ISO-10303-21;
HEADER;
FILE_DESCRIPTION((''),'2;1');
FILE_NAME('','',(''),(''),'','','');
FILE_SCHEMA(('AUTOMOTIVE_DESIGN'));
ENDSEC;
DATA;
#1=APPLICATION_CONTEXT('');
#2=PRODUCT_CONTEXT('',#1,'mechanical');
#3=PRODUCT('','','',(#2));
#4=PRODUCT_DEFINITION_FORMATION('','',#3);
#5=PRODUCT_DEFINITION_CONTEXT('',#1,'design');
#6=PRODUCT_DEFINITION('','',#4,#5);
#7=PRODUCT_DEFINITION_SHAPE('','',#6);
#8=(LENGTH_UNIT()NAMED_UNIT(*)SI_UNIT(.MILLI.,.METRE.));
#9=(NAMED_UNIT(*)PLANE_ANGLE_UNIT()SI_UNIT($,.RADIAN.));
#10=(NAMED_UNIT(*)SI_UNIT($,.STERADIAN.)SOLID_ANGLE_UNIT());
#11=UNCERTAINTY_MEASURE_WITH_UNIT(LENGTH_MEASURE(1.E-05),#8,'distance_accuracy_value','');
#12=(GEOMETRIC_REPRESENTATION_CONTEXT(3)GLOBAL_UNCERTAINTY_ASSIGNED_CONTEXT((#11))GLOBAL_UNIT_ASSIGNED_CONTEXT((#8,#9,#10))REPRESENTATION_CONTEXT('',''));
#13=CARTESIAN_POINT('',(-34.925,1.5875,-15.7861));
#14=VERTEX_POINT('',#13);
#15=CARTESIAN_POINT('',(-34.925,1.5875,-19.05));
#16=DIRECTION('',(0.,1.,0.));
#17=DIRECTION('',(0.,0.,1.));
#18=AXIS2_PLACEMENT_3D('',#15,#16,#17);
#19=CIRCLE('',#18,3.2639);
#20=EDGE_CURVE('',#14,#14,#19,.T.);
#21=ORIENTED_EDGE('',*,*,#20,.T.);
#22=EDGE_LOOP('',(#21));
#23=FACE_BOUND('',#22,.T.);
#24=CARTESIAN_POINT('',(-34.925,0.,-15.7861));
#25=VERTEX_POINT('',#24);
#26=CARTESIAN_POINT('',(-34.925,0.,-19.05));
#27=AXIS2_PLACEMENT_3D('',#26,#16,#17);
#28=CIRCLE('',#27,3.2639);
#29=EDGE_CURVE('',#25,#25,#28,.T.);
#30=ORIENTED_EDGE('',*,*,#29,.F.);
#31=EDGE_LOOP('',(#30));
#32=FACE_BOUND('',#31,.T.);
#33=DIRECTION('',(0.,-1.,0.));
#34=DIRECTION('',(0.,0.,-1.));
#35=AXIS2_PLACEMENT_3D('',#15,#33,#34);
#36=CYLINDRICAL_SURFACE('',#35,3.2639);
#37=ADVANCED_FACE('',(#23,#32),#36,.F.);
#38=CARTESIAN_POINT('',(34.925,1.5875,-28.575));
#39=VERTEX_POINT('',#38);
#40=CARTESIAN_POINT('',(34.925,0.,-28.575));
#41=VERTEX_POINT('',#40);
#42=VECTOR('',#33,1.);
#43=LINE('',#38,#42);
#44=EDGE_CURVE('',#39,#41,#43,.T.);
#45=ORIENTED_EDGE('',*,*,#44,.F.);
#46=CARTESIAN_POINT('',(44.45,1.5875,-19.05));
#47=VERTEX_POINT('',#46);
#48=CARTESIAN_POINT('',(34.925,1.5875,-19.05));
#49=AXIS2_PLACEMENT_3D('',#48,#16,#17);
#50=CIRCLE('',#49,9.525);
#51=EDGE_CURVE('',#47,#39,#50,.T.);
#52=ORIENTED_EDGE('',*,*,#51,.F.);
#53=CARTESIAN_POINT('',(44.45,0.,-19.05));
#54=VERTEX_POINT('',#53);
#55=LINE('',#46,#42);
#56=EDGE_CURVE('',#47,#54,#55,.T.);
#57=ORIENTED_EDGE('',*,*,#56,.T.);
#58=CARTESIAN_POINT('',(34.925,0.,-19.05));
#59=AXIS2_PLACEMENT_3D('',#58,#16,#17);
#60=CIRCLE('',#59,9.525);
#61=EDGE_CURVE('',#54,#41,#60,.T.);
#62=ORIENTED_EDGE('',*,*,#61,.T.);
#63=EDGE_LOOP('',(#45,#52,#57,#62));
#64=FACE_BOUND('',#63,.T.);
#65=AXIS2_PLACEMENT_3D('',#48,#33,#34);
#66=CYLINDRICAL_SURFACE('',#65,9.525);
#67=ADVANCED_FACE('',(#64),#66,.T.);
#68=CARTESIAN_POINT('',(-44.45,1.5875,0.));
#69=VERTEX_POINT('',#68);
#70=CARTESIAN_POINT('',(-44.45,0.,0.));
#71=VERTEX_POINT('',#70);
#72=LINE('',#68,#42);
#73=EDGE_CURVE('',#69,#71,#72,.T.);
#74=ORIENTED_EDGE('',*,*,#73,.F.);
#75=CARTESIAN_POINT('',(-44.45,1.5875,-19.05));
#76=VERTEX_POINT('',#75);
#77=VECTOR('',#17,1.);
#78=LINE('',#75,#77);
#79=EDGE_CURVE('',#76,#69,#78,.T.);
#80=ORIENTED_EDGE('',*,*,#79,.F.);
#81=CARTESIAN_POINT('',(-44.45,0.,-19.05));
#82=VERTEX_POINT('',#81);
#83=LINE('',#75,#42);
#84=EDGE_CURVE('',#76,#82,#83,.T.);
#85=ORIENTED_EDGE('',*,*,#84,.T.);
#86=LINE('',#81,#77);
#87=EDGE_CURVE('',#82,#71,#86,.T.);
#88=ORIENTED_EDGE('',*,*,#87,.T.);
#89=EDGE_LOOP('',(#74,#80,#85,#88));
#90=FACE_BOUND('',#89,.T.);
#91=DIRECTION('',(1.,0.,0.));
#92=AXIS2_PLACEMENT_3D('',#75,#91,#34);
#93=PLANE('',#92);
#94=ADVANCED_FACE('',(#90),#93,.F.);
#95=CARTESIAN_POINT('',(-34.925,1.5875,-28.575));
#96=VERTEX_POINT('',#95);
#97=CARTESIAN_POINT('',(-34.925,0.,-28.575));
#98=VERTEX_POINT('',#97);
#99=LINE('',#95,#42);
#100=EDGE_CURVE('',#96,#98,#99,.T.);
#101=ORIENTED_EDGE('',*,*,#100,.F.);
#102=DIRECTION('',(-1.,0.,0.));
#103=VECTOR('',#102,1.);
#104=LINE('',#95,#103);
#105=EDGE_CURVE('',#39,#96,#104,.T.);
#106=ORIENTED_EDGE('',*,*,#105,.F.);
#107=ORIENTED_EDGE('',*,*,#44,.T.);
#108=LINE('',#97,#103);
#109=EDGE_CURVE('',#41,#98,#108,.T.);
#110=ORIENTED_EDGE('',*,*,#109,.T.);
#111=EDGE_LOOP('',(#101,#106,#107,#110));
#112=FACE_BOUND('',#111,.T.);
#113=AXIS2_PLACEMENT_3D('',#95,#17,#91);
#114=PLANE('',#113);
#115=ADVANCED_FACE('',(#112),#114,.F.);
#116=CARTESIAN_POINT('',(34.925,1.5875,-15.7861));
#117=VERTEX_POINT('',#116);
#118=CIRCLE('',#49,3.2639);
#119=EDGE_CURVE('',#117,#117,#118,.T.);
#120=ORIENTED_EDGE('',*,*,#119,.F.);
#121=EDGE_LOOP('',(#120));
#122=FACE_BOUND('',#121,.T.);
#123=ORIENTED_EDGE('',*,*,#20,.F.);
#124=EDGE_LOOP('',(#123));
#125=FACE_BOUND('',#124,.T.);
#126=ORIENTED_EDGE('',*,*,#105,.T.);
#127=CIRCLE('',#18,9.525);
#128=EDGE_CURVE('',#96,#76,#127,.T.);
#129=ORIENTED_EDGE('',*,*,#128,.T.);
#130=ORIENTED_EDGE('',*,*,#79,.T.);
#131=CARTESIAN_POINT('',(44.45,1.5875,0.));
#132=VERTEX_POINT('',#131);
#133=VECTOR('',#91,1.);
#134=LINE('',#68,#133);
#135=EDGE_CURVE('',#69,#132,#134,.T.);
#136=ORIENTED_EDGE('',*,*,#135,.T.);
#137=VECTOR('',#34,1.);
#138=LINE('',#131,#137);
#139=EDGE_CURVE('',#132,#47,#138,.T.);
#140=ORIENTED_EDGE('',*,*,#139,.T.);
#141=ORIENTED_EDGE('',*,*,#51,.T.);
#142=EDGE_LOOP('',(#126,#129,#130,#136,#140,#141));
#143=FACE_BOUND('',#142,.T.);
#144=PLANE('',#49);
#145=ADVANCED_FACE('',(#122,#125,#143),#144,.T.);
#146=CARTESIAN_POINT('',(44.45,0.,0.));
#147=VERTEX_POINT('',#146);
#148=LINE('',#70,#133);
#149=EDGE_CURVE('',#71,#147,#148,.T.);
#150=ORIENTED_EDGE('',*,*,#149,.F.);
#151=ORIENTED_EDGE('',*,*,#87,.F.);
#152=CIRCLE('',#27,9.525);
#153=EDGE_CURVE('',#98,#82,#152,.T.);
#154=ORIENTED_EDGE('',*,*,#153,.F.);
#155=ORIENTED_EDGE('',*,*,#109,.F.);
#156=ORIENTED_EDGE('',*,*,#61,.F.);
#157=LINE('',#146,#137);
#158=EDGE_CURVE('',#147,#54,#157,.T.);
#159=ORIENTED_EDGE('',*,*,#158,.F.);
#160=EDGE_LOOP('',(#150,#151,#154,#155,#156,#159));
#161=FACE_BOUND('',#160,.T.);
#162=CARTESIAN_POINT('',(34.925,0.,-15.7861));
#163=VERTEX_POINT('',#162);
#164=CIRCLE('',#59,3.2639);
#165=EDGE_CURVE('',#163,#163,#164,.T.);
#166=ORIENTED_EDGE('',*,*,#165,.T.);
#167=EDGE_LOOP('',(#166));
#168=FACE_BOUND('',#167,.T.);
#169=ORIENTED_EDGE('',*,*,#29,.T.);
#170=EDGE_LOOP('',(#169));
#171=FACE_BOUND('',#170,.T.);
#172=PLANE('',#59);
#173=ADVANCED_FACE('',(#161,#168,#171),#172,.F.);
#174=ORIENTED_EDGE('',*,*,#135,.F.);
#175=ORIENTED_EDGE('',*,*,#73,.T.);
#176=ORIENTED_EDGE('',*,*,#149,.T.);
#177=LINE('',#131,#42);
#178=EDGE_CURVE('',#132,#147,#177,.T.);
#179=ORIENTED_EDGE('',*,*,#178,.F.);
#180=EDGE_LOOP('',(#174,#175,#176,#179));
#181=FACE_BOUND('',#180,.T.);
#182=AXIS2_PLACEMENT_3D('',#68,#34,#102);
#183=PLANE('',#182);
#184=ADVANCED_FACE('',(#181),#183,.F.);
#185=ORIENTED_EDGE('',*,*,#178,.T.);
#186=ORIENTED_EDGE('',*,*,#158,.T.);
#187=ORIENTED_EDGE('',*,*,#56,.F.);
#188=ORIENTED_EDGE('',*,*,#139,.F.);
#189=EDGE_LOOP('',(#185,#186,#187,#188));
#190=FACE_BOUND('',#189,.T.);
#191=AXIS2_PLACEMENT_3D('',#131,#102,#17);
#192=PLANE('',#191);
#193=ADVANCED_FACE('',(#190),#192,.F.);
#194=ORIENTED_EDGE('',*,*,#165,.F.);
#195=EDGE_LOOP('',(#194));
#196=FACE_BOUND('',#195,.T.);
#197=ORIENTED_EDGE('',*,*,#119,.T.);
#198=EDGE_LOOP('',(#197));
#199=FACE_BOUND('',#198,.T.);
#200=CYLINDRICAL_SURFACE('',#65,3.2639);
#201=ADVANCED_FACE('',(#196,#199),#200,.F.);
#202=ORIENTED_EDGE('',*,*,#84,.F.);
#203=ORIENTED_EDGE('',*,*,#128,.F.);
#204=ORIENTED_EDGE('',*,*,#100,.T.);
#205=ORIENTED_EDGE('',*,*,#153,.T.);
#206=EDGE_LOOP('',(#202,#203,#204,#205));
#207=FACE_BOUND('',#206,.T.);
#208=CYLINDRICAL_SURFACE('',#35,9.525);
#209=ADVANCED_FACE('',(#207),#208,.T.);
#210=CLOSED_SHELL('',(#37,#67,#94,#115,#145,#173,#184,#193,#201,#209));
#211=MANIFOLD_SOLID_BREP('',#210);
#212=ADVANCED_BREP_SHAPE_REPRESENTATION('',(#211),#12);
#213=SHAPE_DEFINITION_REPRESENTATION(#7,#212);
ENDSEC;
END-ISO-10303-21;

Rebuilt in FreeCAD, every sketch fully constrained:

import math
import FreeCAD as App
import Part
import Sketcher

V = App.Vector
Q = App.Units.Quantity

doc = App.newDocument("Part")
params = doc.addObject("Spreadsheet::Sheet", "Params")
for row, (alias, value) in enumerate([
    ("sketch1_diameter", "0.257 in"),
    ("sketch1_width", "3.5 in"),
    ("sketch1_radius", "0.375 in"),
    ("sketch1_height", "0.75 in"),
    ("pad1_length", "0.0625 in"),
], start=1):
    params.set(f"A{row}", alias)
    params.set(f"B{row}", "=" + value)
    params.setAlias(f"B{row}", alias)

body = doc.addObject("PartDesign::Body", "Body")

sketch1 = body.newObject("Sketcher::SketchObject", "Sketch")
sketch1.AttachmentSupport = (doc.getObject("XZ_Plane"), [""])
sketch1.MapMode = "FlatFace"
sketch1.addGeometry([
    Part.LineSegment(V(-44.45, 0, 0), V(44.45, 0, 0)),
    Part.LineSegment(V(44.45, 0, 0), V(44.45, -19.05, 0)),
    Part.ArcOfCircle(Part.Circle(V(34.925, -19.05, 0), V(0, 0, 1), 9.525), math.radians(-90), math.radians(0)),
    Part.LineSegment(V(34.925, -28.575, 0), V(-34.925, -28.575, 0)),
    Part.ArcOfCircle(Part.Circle(V(-34.925, -19.05, 0), V(0, 0, 1), 9.525), math.radians(180), math.radians(270)),
    Part.LineSegment(V(-44.45, -19.05, 0), V(-44.45, 0, 0)),
    Part.Circle(V(-34.925, -19.05, 0), V(0, 0, 1), 3.2639),
    Part.Circle(V(34.925, -19.05, 0), V(0, 0, 1), 3.2639),
], False)
sketch1.addConstraint([
    Sketcher.Constraint("Coincident", 0, 2, 1, 1),
    Sketcher.Constraint("Tangent", 1, 2, 2, 2),
    Sketcher.Constraint("Tangent", 2, 1, 3, 1),
    Sketcher.Constraint("Tangent", 3, 2, 4, 2),
    Sketcher.Constraint("Tangent", 4, 1, 5, 1),
    Sketcher.Constraint("Coincident", 5, 2, 0, 1),
    Sketcher.Constraint("Horizontal", 0),
    Sketcher.Constraint("Vertical", 1),
    Sketcher.Constraint("Horizontal", 3),
    Sketcher.Constraint("Vertical", 5),
    Sketcher.Constraint("Coincident", 6, 3, 4, 3),
    Sketcher.Constraint("Coincident", 7, 3, 2, 3),
    Sketcher.Constraint("Equal", 2, 4),
    Sketcher.Constraint("Equal", 6, 7),
    Sketcher.Constraint("Symmetric", 0, 2, 5, 2, -1, 1),
    Sketcher.Constraint("Diameter", 6, Q("0.257 in")),
    Sketcher.Constraint("DistanceX", 0, 1, 0, 2, Q("3.5 in")),
    Sketcher.Constraint("Radius", 2, Q("0.375 in")),
    Sketcher.Constraint("DistanceY", 1, 2, 1, 1, Q("0.75 in")),
])
sketch1.setExpression("Constraints[15]", "Params.sketch1_diameter")
sketch1.setExpression("Constraints[16]", "Params.sketch1_width")
sketch1.setExpression("Constraints[17]", "Params.sketch1_radius")
sketch1.setExpression("Constraints[18]", "Params.sketch1_height")
pad1 = body.newObject("PartDesign::Pad", "Pad")
pad1.Profile = sketch1
pad1.setExpression("Length", "Params.pad1_length")
pad1.Reversed = True

doc.recompute()
